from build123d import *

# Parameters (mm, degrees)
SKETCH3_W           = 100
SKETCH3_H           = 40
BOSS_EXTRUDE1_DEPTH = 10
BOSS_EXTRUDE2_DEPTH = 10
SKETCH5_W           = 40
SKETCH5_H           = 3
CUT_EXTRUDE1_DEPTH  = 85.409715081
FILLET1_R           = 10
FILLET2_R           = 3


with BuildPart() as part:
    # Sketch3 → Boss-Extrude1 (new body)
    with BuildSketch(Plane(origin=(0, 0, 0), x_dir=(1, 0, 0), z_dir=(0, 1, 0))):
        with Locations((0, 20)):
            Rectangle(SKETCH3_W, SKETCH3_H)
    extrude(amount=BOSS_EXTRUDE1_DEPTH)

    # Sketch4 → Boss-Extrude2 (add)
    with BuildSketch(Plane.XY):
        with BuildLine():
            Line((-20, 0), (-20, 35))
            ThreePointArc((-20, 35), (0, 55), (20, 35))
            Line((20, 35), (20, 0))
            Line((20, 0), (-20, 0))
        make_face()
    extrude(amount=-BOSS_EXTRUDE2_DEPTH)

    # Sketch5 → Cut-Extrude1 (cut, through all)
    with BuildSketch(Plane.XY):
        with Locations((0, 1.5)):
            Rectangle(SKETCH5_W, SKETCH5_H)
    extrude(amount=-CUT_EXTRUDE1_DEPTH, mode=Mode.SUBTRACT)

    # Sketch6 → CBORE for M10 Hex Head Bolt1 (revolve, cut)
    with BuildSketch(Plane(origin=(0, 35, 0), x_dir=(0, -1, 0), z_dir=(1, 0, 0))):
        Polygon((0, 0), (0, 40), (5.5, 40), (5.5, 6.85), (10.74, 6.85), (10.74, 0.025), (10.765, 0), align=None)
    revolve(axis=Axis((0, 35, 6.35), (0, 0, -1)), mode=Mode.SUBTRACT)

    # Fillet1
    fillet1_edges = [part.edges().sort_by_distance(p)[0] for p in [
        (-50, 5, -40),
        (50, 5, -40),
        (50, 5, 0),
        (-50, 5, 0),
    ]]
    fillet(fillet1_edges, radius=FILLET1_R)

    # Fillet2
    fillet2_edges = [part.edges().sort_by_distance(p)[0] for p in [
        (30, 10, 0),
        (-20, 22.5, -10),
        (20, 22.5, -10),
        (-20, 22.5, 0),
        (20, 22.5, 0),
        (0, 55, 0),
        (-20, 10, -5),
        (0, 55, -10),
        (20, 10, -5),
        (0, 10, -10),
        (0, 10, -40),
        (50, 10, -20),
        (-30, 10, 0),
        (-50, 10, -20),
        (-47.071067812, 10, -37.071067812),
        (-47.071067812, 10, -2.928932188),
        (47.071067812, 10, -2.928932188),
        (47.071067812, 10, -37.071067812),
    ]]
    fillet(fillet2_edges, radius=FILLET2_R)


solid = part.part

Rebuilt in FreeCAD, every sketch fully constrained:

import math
import FreeCAD as App
import Part
import Sketcher
from FreeCAD import Vector
Q = App.Units.Quantity


def edges_at(feature, points):
    """Names of the edges that pass closest to the given points."""
    edges = feature.Shape.Edges
    near = lambda p: min(range(len(edges)), key=lambda i: edges[i].distToShape(Part.Vertex(*p))[0])
    return sorted({f"Edge{near(p) + 1}" for p in points})


def add_polygon(sketch, points):
    """Adds a closed chain of lines whose ends are joined by coincident constraints."""
    first, n = sketch.GeometryCount, len(points)
    for a, b in zip(points, points[1:] + points[:1]):
        sketch.addGeometry(Part.LineSegment(App.Vector(*a, 0), App.Vector(*b, 0)), False)
    for i in range(n):
        sketch.addConstraint(Sketcher.Constraint("Coincident", first + i, 2, first + (i + 1) % n, 1))

doc = App.newDocument("Part")
body = doc.addObject("PartDesign::Body", "Body")

sketch1 = doc.addObject("Sketcher::SketchObject", "Sketch")
body.addObject(sketch1)
sketch1.AttachmentSupport = (doc.XZ_Plane, [""])
sketch1.MapMode = "FlatFace"
add_polygon(sketch1, [(-50, -40), (-50, 0), (50, 0), (50, -40)])
sketch1.addConstraint([
    Sketcher.Constraint("Vertical", 0),
    Sketcher.Constraint("Horizontal", 1),
    Sketcher.Constraint("Vertical", 2),
    Sketcher.Constraint("Horizontal", 3),
    Sketcher.Constraint("Symmetric", 0, 2, 1, 2, -1, 1),
    Sketcher.Constraint("DistanceX", 1, 1, 1, 2, 100.0),
    Sketcher.Constraint("DistanceY", 0, 1, 0, 2, 40.0),
])
pad1 = doc.addObject("PartDesign::Pad", "Pad")
body.addObject(pad1)
pad1.Profile = sketch1
pad1.Length = 10
pad1.Reversed = True

sketch2 = doc.addObject("Sketcher::SketchObject", "Sketch001")
body.addObject(sketch2)
sketch2.AttachmentSupport = (doc.XY_Plane, [""])
sketch2.MapMode = "FlatFace"
sketch2.addGeometry([
    Part.LineSegment(Vector(-20, 35, 0), Vector(-20, 0, 0)),
    Part.LineSegment(Vector(-20, 0, 0), Vector(20, 0, 0)),
    Part.LineSegment(Vector(20, 0, 0), Vector(20, 35, 0)),
    Part.ArcOfCircle(Part.Circle(Vector(0, 35, 0), Vector(0, 0, 1), 20), math.radians(0), math.radians(180)),
], False)
sketch2.addConstraint([
    Sketcher.Constraint("Coincident", 0, 2, 1, 1),
    Sketcher.Constraint("Coincident", 1, 2, 2, 1),
    Sketcher.Constraint("Tangent", 2, 2, 3, 1),
    Sketcher.Constraint("Tangent", 3, 2, 0, 1),
    Sketcher.Constraint("Vertical", 0),
    Sketcher.Constraint("Horizontal", 1),
    Sketcher.Constraint("Vertical", 2),
    Sketcher.Constraint("Symmetric", 0, 2, 1, 2, -1, 1),
    Sketcher.Constraint("Radius", 3, 20.0),
    Sketcher.Constraint("DistanceY", 0, 2, 0, 1, 35.0),
])
pad2 = doc.addObject("PartDesign::Pad", "Pad001")
body.addObject(pad2)
pad2.Profile = sketch2
pad2.Length = 10
pad2.Reversed = True

sketch3 = doc.addObject("Sketcher::SketchObject", "Sketch002")
body.addObject(sketch3)
sketch3.AttachmentSupport = (doc.XY_Plane, [""])
sketch3.MapMode = "FlatFace"
add_polygon(sketch3, [(-20, 3), (-20, 0), (20, 0), (20, 3)])
sketch3.addConstraint([
    Sketcher.Constraint("Vertical", 0),
    Sketcher.Constraint("Horizontal", 1),
    Sketcher.Constraint("Vertical", 2),
    Sketcher.Constraint("Horizontal", 3),
    Sketcher.Constraint("Symmetric", 0, 2, 1, 2, -1, 1),
    Sketcher.Constraint("DistanceX", 1, 1, 1, 2, 40.0),
    Sketcher.Constraint("DistanceY", 0, 2, 0, 1, 3.0),
])
pocket1 = doc.addObject("PartDesign::Pocket", "Pocket")
body.addObject(pocket1)
pocket1.Profile = sketch3
pocket1.Type = "ThroughAll"

sketch4 = doc.addObject("Sketcher::SketchObject", "Sketch003")
body.addObject(sketch4)
sketch4.AttachmentSupport = (doc.YZ_Plane, [""])
sketch4.MapMode = "FlatFace"
add_polygon(sketch4, [(35, -40), (35, 0), (24.235, 0), (24.26, -0.025), (24.26, -6.85), (29.5, -6.85), (29.5, -40)])
sketch4.addGeometry(Part.LineSegment(Vector(35, 0, 0), Vector(35, -40, 0)), True)
sketch4.addConstraint([
    Sketcher.Constraint("Vertical", 0),
    Sketcher.Constraint("Horizontal", 1),
    Sketcher.Constraint("Vertical", 3),
    Sketcher.Constraint("Horizontal", 4),
    Sketcher.Constraint("Vertical", 5),
    Sketcher.Constraint("Horizontal", 6),
    Sketcher.Constraint("Vertical", 7),
    Sketcher.Constraint("Coincident", 7, 1, 0, 2),
    Sketcher.Constraint("PointOnObject", 0, 2, -1),
    Sketcher.Constraint("Horizontal", 5, 2, 7, 2),
    Sketcher.Constraint("DistanceY", 0, 1, 0, 2, 40.0),
    Sketcher.Constraint("Angle", 2, Q("-45 deg")),
    Sketcher.Constraint("DistanceX", 6, 1, 6, 2, 5.5),
    Sketcher.Constraint("DistanceX", -1, 1, 0, 2, 35.0),
    Sketcher.Constraint("DistanceX", 4, 1, 4, 2, 5.24),
    Sketcher.Constraint("DistanceY", 5, 2, 5, 1, 33.15),
    Sketcher.Constraint("DistanceX", 1, 2, 1, 1, 10.765),
])
groove = doc.addObject("PartDesign::Groove", "Groove")
body.addObject(groove)
groove.Profile = sketch4
groove.ReferenceAxis = (sketch4, ["Axis0"])
groove.Angle = 360
doc.recompute()

fillet = doc.addObject("PartDesign::Fillet", "Fillet")
body.addObject(fillet)
fillet.Base = (groove, edges_at(groove, [
    (-50, 5, -40),
    (50, 5, -40),
    (50, 5, 0),
    (-50, 5, 0),
]))
fillet.Radius = 10
doc.recompute()

fillet2 = doc.addObject("PartDesign::Fillet", "Fillet001")
body.addObject(fillet2)
fillet2.Base = (fillet, edges_at(fillet, [
    (30, 10, 0),
    (-20, 22.5, -10),
    (20, 22.5, -10),
    (-20, 22.5, 0),
    (20, 22.5, 0),
    (0, 55, 0),
    (-20, 10, -5),
    (0, 55, -10),
    (20, 10, -5),
    (0, 10, -10),
    (0, 10, -40),
    (50, 10, -20),
    (-30, 10, 0),
    (-50, 10, -20),
    (-47.071, 10, -37.071),
    (-47.071, 10, -2.929),
    (47.071, 10, -2.929),
    (47.071, 10, -37.071),
]))
fillet2.Radius = 3

doc.recompute()
